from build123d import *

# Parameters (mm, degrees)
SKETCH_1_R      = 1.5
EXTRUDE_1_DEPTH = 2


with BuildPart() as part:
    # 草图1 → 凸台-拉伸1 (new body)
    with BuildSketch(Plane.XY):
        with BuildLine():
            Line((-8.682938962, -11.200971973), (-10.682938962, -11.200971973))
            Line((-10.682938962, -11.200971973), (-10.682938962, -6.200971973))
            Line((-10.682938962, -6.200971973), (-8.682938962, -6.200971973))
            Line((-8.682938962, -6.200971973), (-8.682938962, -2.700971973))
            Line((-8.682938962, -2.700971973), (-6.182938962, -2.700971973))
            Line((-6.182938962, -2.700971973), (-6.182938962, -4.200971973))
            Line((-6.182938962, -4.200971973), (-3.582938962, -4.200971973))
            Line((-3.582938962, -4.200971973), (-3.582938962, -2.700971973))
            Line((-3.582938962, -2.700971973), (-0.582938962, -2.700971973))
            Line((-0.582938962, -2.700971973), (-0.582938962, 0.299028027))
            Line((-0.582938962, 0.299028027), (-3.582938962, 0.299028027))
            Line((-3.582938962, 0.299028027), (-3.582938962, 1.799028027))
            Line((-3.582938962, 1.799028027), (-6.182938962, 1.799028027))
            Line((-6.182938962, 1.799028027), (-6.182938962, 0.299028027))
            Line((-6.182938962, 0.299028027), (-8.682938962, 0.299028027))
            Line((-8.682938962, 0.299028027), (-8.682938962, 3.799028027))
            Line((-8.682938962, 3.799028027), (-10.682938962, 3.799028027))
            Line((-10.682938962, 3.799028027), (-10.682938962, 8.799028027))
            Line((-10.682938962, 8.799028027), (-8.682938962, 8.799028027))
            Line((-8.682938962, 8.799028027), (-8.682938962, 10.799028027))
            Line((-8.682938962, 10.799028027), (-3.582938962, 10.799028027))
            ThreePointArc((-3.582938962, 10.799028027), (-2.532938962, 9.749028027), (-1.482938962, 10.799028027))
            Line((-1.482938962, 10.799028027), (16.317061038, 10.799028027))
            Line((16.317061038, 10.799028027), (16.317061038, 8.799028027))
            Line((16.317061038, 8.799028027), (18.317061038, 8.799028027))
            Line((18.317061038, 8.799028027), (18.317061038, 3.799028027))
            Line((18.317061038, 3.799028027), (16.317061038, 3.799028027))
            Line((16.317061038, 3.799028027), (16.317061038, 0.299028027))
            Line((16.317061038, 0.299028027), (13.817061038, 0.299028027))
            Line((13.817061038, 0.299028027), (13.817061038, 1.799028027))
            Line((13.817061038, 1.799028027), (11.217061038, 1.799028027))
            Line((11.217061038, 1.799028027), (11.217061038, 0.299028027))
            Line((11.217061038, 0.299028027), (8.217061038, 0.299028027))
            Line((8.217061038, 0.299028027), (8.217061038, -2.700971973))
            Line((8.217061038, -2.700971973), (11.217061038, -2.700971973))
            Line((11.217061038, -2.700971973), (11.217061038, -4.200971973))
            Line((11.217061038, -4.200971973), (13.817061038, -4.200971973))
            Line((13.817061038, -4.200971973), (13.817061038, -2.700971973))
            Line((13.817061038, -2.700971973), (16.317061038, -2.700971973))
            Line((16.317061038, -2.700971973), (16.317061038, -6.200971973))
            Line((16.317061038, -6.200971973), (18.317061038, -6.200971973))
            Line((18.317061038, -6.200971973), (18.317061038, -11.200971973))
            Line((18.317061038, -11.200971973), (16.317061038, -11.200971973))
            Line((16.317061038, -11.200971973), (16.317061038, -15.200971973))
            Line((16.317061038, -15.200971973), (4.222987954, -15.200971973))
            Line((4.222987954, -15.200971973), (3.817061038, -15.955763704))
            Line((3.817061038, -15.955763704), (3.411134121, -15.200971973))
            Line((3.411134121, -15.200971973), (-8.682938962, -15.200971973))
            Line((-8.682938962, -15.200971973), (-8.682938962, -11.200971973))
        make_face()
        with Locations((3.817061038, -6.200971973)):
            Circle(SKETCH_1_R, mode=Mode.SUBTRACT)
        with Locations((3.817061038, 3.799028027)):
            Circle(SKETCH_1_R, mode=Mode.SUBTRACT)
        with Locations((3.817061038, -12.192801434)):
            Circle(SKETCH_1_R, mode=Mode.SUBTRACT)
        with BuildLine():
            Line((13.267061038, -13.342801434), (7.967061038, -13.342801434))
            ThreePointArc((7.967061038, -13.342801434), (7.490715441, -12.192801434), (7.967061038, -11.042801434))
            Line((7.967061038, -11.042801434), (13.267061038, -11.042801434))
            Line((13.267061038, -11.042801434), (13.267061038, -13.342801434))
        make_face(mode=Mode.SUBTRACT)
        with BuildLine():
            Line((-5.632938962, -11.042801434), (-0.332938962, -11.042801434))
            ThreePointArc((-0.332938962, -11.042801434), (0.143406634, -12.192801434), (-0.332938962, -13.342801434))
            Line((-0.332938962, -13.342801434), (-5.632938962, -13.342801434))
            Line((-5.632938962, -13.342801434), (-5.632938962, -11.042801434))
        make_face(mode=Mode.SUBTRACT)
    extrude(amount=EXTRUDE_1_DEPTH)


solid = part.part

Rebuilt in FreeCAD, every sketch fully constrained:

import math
import FreeCAD as App
import Part
import Sketcher

doc = App.newDocument("Part")
body = doc.addObject("PartDesign::Body", "Body")

# Sketch on XY plane
sketch1 = body.newObject("Sketcher::SketchObject", "Sketch")
sketch1.AttachmentSupport = (doc.getObject("XY_Plane"), [""])
sketch1.MapMode = "FlatFace"
sketch1.addGeometry(Part.LineSegment(App.Vector(-10.7, -11.2, 0), App.Vector(-8.7, -11.2, 0)), False)
sketch1.addGeometry(Part.LineSegment(App.Vector(-8.7, -11.2, 0), App.Vector(-8.7, -15.2, 0)), False)
sketch1.addGeometry(Part.LineSegment(App.Vector(-8.7, -15.2, 0), App.Vector(3.4, -15.2, 0)), False)
sketch1.addGeometry(Part.LineSegment(App.Vector(3.4, -15.2, 0), App.Vector(3.8, -16, 0)), False)
sketch1.addGeometry(Part.LineSegment(App.Vector(3.8, -16, 0), App.Vector(4.2, -15.2, 0)), False)
sketch1.addGeometry(Part.LineSegment(App.Vector(4.2, -15.2, 0), App.Vector(16.3, -15.2, 0)), False)
sketch1.addGeometry(Part.LineSegment(App.Vector(16.3, -15.2, 0), App.Vector(16.3, -11.2, 0)), False)
sketch1.addGeometry(Part.LineSegment(App.Vector(16.3, -11.2, 0), App.Vector(18.3, -11.2, 0)), False)
sketch1.addGeometry(Part.LineSegment(App.Vector(18.3, -11.2, 0), App.Vector(18.3, -6.2, 0)), False)
sketch1.addGeometry(Part.LineSegment(App.Vector(18.3, -6.2, 0), App.Vector(16.3, -6.2, 0)), False)
sketch1.addGeometry(Part.LineSegment(App.Vector(16.3, -6.2, 0), App.Vector(16.3, -2.7, 0)), False)
sketch1.addGeometry(Part.LineSegment(App.Vector(16.3, -2.7, 0), App.Vector(13.8, -2.7, 0)), False)
sketch1.addGeometry(Part.LineSegment(App.Vector(13.8, -2.7, 0), App.Vector(13.8, -4.2, 0)), False)
sketch1.addGeometry(Part.LineSegment(App.Vector(13.8, -4.2, 0), App.Vector(11.2, -4.2, 0)), False)
sketch1.addGeometry(Part.LineSegment(App.Vector(11.2, -4.2, 0), App.Vector(11.2, -2.7, 0)), False)
sketch1.addGeometry(Part.LineSegment(App.Vector(11.2, -2.7, 0), App.Vector(8.2, -2.7, 0)), False)
sketch1.addGeometry(Part.LineSegment(App.Vector(8.2, -2.7, 0), App.Vector(8.2, 0.3, 0)), False)
sketch1.addGeometry(Part.LineSegment(App.Vector(8.2, 0.3, 0), App.Vector(11.2, 0.3, 0)), False)
sketch1.addGeometry(Part.LineSegment(App.Vector(11.2, 0.3, 0), App.Vector(11.2, 1.8, 0)), False)
sketch1.addGeometry(Part.LineSegment(App.Vector(11.2, 1.8, 0), App.Vector(13.8, 1.8, 0)), False)
sketch1.addGeometry(Part.LineSegment(App.Vector(13.8, 1.8, 0), App.Vector(13.8, 0.3, 0)), False)
sketch1.addGeometry(Part.LineSegment(App.Vector(13.8, 0.3, 0), App.Vector(16.3, 0.3, 0)), False)
sketch1.addGeometry(Part.LineSegment(App.Vector(16.3, 0.3, 0), App.Vector(16.3, 3.8, 0)), False)
sketch1.addGeometry(Part.LineSegment(App.Vector(16.3, 3.8, 0), App.Vector(18.3, 3.8, 0)), False)
sketch1.addGeometry(Part.LineSegment(App.Vector(18.3, 3.8, 0), App.Vector(18.3, 8.8, 0)), False)
sketch1.addGeometry(Part.LineSegment(App.Vector(18.3, 8.8, 0), App.Vector(16.3, 8.8, 0)), False)
sketch1.addGeometry(Part.LineSegment(App.Vector(16.3, 8.8, 0), App.Vector(16.3, 10.8, 0)), False)
sketch1.addGeometry(Part.LineSegment(App.Vector(16.3, 10.8, 0), App.Vector(-1.5, 10.8, 0)), False)
sketch1.addGeometry(Part.ArcOfCircle(Part.Circle(App.Vector(-2.5, 10.8, 0), App.Vector(0, 0, 1), 1.1), math.radians(180), math.radians(360)), False)
sketch1.addGeometry(Part.LineSegment(App.Vector(-3.6, 10.8, 0), App.Vector(-8.7, 10.8, 0)), False)
sketch1.addGeometry(Part.LineSegment(App.Vector(-8.7, 10.8, 0), App.Vector(-8.7, 8.8, 0)), False)
sketch1.addGeometry(Part.LineSegment(App.Vector(-8.7, 8.8, 0), App.Vector(-10.7, 8.8, 0)), False)
sketch1.addGeometry(Part.LineSegment(App.Vector(-10.7, 8.8, 0), App.Vector(-10.7, 3.8, 0)), False)
sketch1.addGeometry(Part.LineSegment(App.Vector(-10.7, 3.8, 0), App.Vector(-8.7, 3.8, 0)), False)
sketch1.addGeometry(Part.LineSegment(App.Vector(-8.7, 3.8, 0), App.Vector(-8.7, 0.3, 0)), False)
sketch1.addGeometry(Part.LineSegment(App.Vector(-8.7, 0.3, 0), App.Vector(-6.2, 0.3, 0)), False)
sketch1.addGeometry(Part.LineSegment(App.Vector(-6.2, 0.3, 0), App.Vector(-6.2, 1.8, 0)), False)
sketch1.addGeometry(Part.LineSegment(App.Vector(-6.2, 1.8, 0), App.Vector(-3.6, 1.8, 0)), False)
sketch1.addGeometry(Part.LineSegment(App.Vector(-3.6, 1.8, 0), App.Vector(-3.6, 0.3, 0)), False)
sketch1.addGeometry(Part.LineSegment(App.Vector(-3.6, 0.3, 0), App.Vector(-0.6, 0.3, 0)), False)
sketch1.addGeometry(Part.LineSegment(App.Vector(-0.6, 0.3, 0), App.Vector(-0.6, -2.7, 0)), False)
sketch1.addGeometry(Part.LineSegment(App.Vector(-0.6, -2.7, 0), App.Vector(-3.6, -2.7, 0)), False)
sketch1.addGeometry(Part.LineSegment(App.Vector(-3.6, -2.7, 0), App.Vector(-3.6, -4.2, 0)), False)
sketch1.addGeometry(Part.LineSegment(App.Vector(-3.6, -4.2, 0), App.Vector(-6.2, -4.2, 0)), False)
sketch1.addGeometry(Part.LineSegment(App.Vector(-6.2, -4.2, 0), App.Vector(-6.2, -2.7, 0)), False)
sketch1.addGeometry(Part.LineSegment(App.Vector(-6.2, -2.7, 0), App.Vector(-8.7, -2.7, 0)), False)
sketch1.addGeometry(Part.LineSegment(App.Vector(-8.7, -2.7, 0), App.Vector(-8.7, -6.2, 0)), False)
sketch1.addGeometry(Part.LineSegment(App.Vector(-8.7, -6.2, 0), App.Vector(-10.7, -6.2, 0)), False)
sketch1.addGeometry(Part.LineSegment(App.Vector(-10.7, -6.2, 0), App.Vector(-10.7, -11.2, 0)), False)
sketch1.addGeometry(Part.LineSegment(App.Vector(13.3, -13.3, 0), App.Vector(8, -13.3, 0)), False)
sketch1.addGeometry(Part.ArcOfCircle(Part.Circle(App.Vector(9.1, -12.2, 0), App.Vector(0, 0, 1), 1.6), math.radians(135), math.radians(225)), False)
sketch1.addGeometry(Part.LineSegment(App.Vector(8, -11, 0), App.Vector(13.3, -11, 0)), False)
sketch1.addGeometry(Part.LineSegment(App.Vector(13.3, -11, 0), App.Vector(13.3, -13.3, 0)), False)
sketch1.addGeometry(Part.Circle(App.Vector(3.8, -12.2, 0), App.Vector(0, 0, 1), 1.5), False)
sketch1.addGeometry(Part.LineSegment(App.Vector(-5.6, -11, 0), App.Vector(-0.3, -11, 0)), False)
sketch1.addGeometry(Part.ArcOfCircle(Part.Circle(App.Vector(-1.5, -12.2, 0), App.Vector(0, 0, 1), 1.6), math.radians(-45), math.radians(45)), False)
sketch1.addGeometry(Part.LineSegment(App.Vector(-0.3, -13.3, 0), App.Vector(-5.6, -13.3, 0)), False)
sketch1.addGeometry(Part.LineSegment(App.Vector(-5.6, -13.3, 0), App.Vector(-5.6, -11, 0)), False)
sketch1.addGeometry(Part.Circle(App.Vector(3.8, -6.2, 0), App.Vector(0, 0, 1), 1.5), False)
sketch1.addGeometry(Part.Circle(App.Vector(3.8, 3.8, 0), App.Vector(0, 0, 1), 1.5), False)
sketch1.addConstraint(Sketcher.Constraint("Coincident", 0, 2, 1, 1))
sketch1.addConstraint(Sketcher.Constraint("Coincident", 1, 2, 2, 1))
sketch1.addConstraint(Sketcher.Constraint("Coincident", 2, 2, 3, 1))
sketch1.addConstraint(Sketcher.Constraint("Coincident", 3, 2, 4, 1))
sketch1.addConstraint(Sketcher.Constraint("Coincident", 4, 2, 5, 1))
sketch1.addConstraint(Sketcher.Constraint("Coincident", 5, 2, 6, 1))
sketch1.addConstraint(Sketcher.Constraint("Coincident", 6, 2, 7, 1))
sketch1.addConstraint(Sketcher.Constraint("Coincident", 7, 2, 8, 1))
sketch1.addConstraint(Sketcher.Constraint("Coincident", 8, 2, 9, 1))
sketch1.addConstraint(Sketcher.Constraint("Coincident", 9, 2, 10, 1))
sketch1.addConstraint(Sketcher.Constraint("Coincident", 10, 2, 11, 1))
sketch1.addConstraint(Sketcher.Constraint("Coincident", 11, 2, 12, 1))
sketch1.addConstraint(Sketcher.Constraint("Coincident", 12, 2, 13, 1))
sketch1.addConstraint(Sketcher.Constraint("Coincident", 13, 2, 14, 1))
sketch1.addConstraint(Sketcher.Constraint("Coincident", 14, 2, 15, 1))
sketch1.addConstraint(Sketcher.Constraint("Coincident", 15, 2, 16, 1))
sketch1.addConstraint(Sketcher.Constraint("Coincident", 16, 2, 17, 1))
sketch1.addConstraint(Sketcher.Constraint("Coincident", 17, 2, 18, 1))
sketch1.addConstraint(Sketcher.Constraint("Coincident", 18, 2, 19, 1))
sketch1.addConstraint(Sketcher.Constraint("Coincident", 19, 2, 20, 1))
sketch1.addConstraint(Sketcher.Constraint("Coincident", 20, 2, 21, 1))
sketch1.addConstraint(Sketcher.Constraint("Coincident", 21, 2, 22, 1))
sketch1.addConstraint(Sketcher.Constraint("Coincident", 22, 2, 23, 1))
sketch1.addConstraint(Sketcher.Constraint("Coincident", 23, 2, 24, 1))
sketch1.addConstraint(Sketcher.Constraint("Coincident", 24, 2, 25, 1))
sketch1.addConstraint(Sketcher.Constraint("Coincident", 25, 2, 26, 1))
sketch1.addConstraint(Sketcher.Constraint("Coincident", 26, 2, 27, 1))
sketch1.addConstraint(Sketcher.Constraint("Coincident", 27, 2, 28, 2))
sketch1.addConstraint(Sketcher.Constraint("Coincident", 28, 1, 29, 1))
sketch1.addConstraint(Sketcher.Constraint("Coincident", 29, 2, 30, 1))
sketch1.addConstraint(Sketcher.Constraint("Coincident", 30, 2, 31, 1))
sketch1.addConstraint(Sketcher.Constraint("Coincident", 31, 2, 32, 1))
sketch1.addConstraint(Sketcher.Constraint("Coincident", 32, 2, 33, 1))
sketch1.addConstraint(Sketcher.Constraint("Coincident", 33, 2, 34, 1))
sketch1.addConstraint(Sketcher.Constraint("Coincident", 34, 2, 35, 1))
sketch1.addConstraint(Sketcher.Constraint("Coincident", 35, 2, 36, 1))
sketch1.addConstraint(Sketcher.Constraint("Coincident", 36, 2, 37, 1))
sketch1.addConstraint(Sketcher.Constraint("Coincident", 37, 2, 38, 1))
sketch1.addConstraint(Sketcher.Constraint("Coincident", 38, 2, 39, 1))
sketch1.addConstraint(Sketcher.Constraint("Coincident", 39, 2, 40, 1))
sketch1.addConstraint(Sketcher.Constraint("Coincident", 40, 2, 41, 1))
sketch1.addConstraint(Sketcher.Constraint("Coincident", 41, 2, 42, 1))
sketch1.addConstraint(Sketcher.Constraint("Coincident", 42, 2, 43, 1))
sketch1.addConstraint(Sketcher.Constraint("Coincident", 43, 2, 44, 1))
sketch1.addConstraint(Sketcher.Constraint("Coincident", 44, 2, 45, 1))
sketch1.addConstraint(Sketcher.Constraint("Coincident", 45, 2, 46, 1))
sketch1.addConstraint(Sketcher.Constraint("Coincident", 46, 2, 47, 1))
sketch1.addConstraint(Sketcher.Constraint("Coincident", 47, 2, 48, 1))
sketch1.addConstraint(Sketcher.Constraint("Coincident", 48, 2, 0, 1))
sketch1.addConstraint(Sketcher.Constraint("Coincident", 49, 2, 50, 2))
sketch1.addConstraint(Sketcher.Constraint("Coincident", 50, 1, 51, 1))
sketch1.addConstraint(Sketcher.Constraint("Coincident", 51, 2, 52, 1))
sketch1.addConstraint(Sketcher.Constraint("Coincident", 52, 2, 49, 1))
sketch1.addConstraint(Sketcher.Constraint("Coincident", 54, 2, 55, 2))
sketch1.addConstraint(Sketcher.Constraint("Coincident", 55, 1, 56, 1))
sketch1.addConstraint(Sketcher.Constraint("Coincident", 56, 2, 57, 1))
sketch1.addConstraint(Sketcher.Constraint("Coincident", 57, 2, 54, 1))
sketch1.addConstraint(Sketcher.Constraint("Horizontal", 0))
sketch1.addConstraint(Sketcher.Constraint("Vertical", 1))
sketch1.addConstraint(Sketcher.Constraint("Horizontal", 2))
sketch1.addConstraint(Sketcher.Constraint("Horizontal", 5))
sketch1.addConstraint(Sketcher.Constraint("Vertical", 6))
sketch1.addConstraint(Sketcher.Constraint("Horizontal", 7))
sketch1.addConstraint(Sketcher.Constraint("Vertical", 8))
sketch1.addConstraint(Sketcher.Constraint("Horizontal", 9))
sketch1.addConstraint(Sketcher.Constraint("Vertical", 10))
sketch1.addConstraint(Sketcher.Constraint("Horizontal", 11))
sketch1.addConstraint(Sketcher.Constraint("Vertical", 12))
sketch1.addConstraint(Sketcher.Constraint("Horizontal", 13))
sketch1.addConstraint(Sketcher.Constraint("Vertical", 14))
sketch1.addConstraint(Sketcher.Constraint("Horizontal", 15))
sketch1.addConstraint(Sketcher.Constraint("Vertical", 16))
sketch1.addConstraint(Sketcher.Constraint("Horizontal", 17))
sketch1.addConstraint(Sketcher.Constraint("Vertical", 18))
sketch1.addConstraint(Sketcher.Constraint("Horizontal", 19))
sketch1.addConstraint(Sketcher.Constraint("Vertical", 20))
sketch1.addConstraint(Sketcher.Constraint("Horizontal", 21))
sketch1.addConstraint(Sketcher.Constraint("Vertical", 22))
sketch1.addConstraint(Sketcher.Constraint("Horizontal", 23))
sketch1.addConstraint(Sketcher.Constraint("Vertical", 24))
sketch1.addConstraint(Sketcher.Constraint("Horizontal", 25))
sketch1.addConstraint(Sketcher.Constraint("Vertical", 26))
sketch1.addConstraint(Sketcher.Constraint("Horizontal", 27))
sketch1.addConstraint(Sketcher.Constraint("Horizontal", 29))
sketch1.addConstraint(Sketcher.Constraint("Vertical", 30))
sketch1.addConstraint(Sketcher.Constraint("Horizontal", 31))
sketch1.addConstraint(Sketcher.Constraint("Vertical", 32))
sketch1.addConstraint(Sketcher.Constraint("Horizontal", 33))
sketch1.addConstraint(Sketcher.Constraint("Vertical", 34))
sketch1.addConstraint(Sketcher.Constraint("Horizontal", 35))
sketch1.addConstraint(Sketcher.Constraint("Vertical", 36))
sketch1.addConstraint(Sketcher.Constraint("Horizontal", 37))
sketch1.addConstraint(Sketcher.Constraint("Vertical", 38))
sketch1.addConstraint(Sketcher.Constraint("Horizontal", 39))
sketch1.addConstraint(Sketcher.Constraint("Vertical", 40))
sketch1.addConstraint(Sketcher.Constraint("Horizontal", 41))
sketch1.addConstraint(Sketcher.Constraint("Vertical", 42))
sketch1.addConstraint(Sketcher.Constraint("Horizontal", 43))
sketch1.addConstraint(Sketcher.Constraint("Vertical", 44))
sketch1.addConstraint(Sketcher.Constraint("Horizontal", 45))
sketch1.addConstraint(Sketcher.Constraint("Vertical", 46))
sketch1.addConstraint(Sketcher.Constraint("Horizontal", 47))
sketch1.addConstraint(Sketcher.Constraint("Vertical", 48))
sketch1.addConstraint(Sketcher.Constraint("Horizontal", 49))
sketch1.addConstraint(Sketcher.Constraint("Horizontal", 51))
sketch1.addConstraint(Sketcher.Constraint("Vertical", 52))
sketch1.addConstraint(Sketcher.Constraint("Horizontal", 54))
sketch1.addConstraint(Sketcher.Constraint("Horizontal", 56))
sketch1.addConstraint(Sketcher.Constraint("Vertical", 57))
sketch1.addConstraint(Sketcher.Constraint("Equal", 50, 55))
sketch1.addConstraint(Sketcher.Constraint("Equal", 53, 58))
sketch1.addConstraint(Sketcher.Constraint("Equal", 58, 59))
sketch1.addConstraint(Sketcher.Constraint("Horizontal", 50, 3, 53, 3))
sketch1.addConstraint(Sketcher.Constraint("Horizontal", 53, 3, 55, 3))
sketch1.addConstraint(Sketcher.Constraint("Horizontal", 2, 2, 4, 2))
sketch1.addConstraint(Sketcher.Constraint("Horizontal", 0, 2, 6, 2))
sketch1.addConstraint(Sketcher.Constraint("Horizontal", 58, 3, 8, 2))
sketch1.addConstraint(Sketcher.Constraint("Horizontal", 11, 2, 14, 2))
sketch1.addConstraint(Sketcher.Constraint("Horizontal", 17, 2, 20, 2))
sketch1.addConstraint(Sketcher.Constraint("Horizontal", 59, 3, 22, 2))
sketch1.addConstraint(Sketcher.Constraint("Horizontal", 28, 3, 26, 2))
sketch1.addConstraint(Sketcher.Constraint("Horizontal", 27, 2, 28, 1))
sketch1.addConstraint(Sketcher.Constraint("Horizontal", 25, 2, 30, 2))
sketch1.addConstraint(Sketcher.Constraint("Horizontal", 23, 2, 32, 2))
sketch1.addConstraint(Sketcher.Constraint("Horizontal", 21, 2, 34, 2))
sketch1.addConstraint(Sketcher.Constraint("Horizontal", 19, 2, 36, 2))
sketch1.addConstraint(Sketcher.Constraint("Horizontal", 35, 2, 38, 2))
sketch1.addConstraint(Sketcher.Constraint("Horizontal", 15, 2, 40, 2))
sketch1.addConstraint(Sketcher.Constraint("Horizontal", 13, 2, 42, 2))
sketch1.addConstraint(Sketcher.Constraint("Horizontal", 41, 2, 44, 2))
sketch1.addConstraint(Sketcher.Constraint("Horizontal", 9, 2, 46, 2))
sketch1.addConstraint(Sketcher.Constraint("Horizontal", 51, 2, 54, 2))
sketch1.addConstraint(Sketcher.Constraint("Horizontal", 52, 2, 55, 1))
sketch1.addConstraint(Sketcher.Constraint("Vertical", 53, 3, 58, 3))
sketch1.addConstraint(Sketcher.Constraint("Vertical", 58, 3, 59, 3))
sketch1.addConstraint(Sketcher.Constraint("Vertical", 59, 3, 3, 2))
sketch1.addConstraint(Sketcher.Constraint("Vertical", 6, 2, 9, 2))
sketch1.addConstraint(Sketcher.Constraint("Vertical", 14, 2, 17, 2))
sketch1.addConstraint(Sketcher.Constraint("Vertical", 12, 2, 19, 2))
sketch1.addConstraint(Sketcher.Constraint("Vertical", 10, 2, 21, 2))
sketch1.addConstraint(Sketcher.Constraint("Vertical", 8, 2, 23, 2))
sketch1.addConstraint(Sketcher.Constraint("Vertical", 22, 2, 25, 2))
sketch1.addConstraint(Sketcher.Constraint("Vertical", 55, 3, 27, 2))
sketch1.addConstraint(Sketcher.Constraint("Vertical", 1, 2, 29, 2))
sketch1.addConstraint(Sketcher.Constraint("Vertical", 30, 2, 33, 2))
sketch1.addConstraint(Sketcher.Constraint("Vertical", 28, 1, 37, 2))
sketch1.addConstraint(Sketcher.Constraint("Vertical", 38, 2, 41, 2))
sketch1.addConstraint(Sketcher.Constraint("Vertical", 36, 2, 43, 2))
sketch1.addConstraint(Sketcher.Constraint("Vertical", 34, 2, 45, 2))
sketch1.addConstraint(Sketcher.Constraint("Vertical", 32, 2, 47, 2))
sketch1.addConstraint(Sketcher.Constraint("Vertical", 49, 2, 50, 1))
sketch1.addConstraint(Sketcher.Constraint("Equal", 2, 5))
sketch1.addConstraint(Sketcher.Constraint("Equal", 0, 7))
sketch1.addConstraint(Sketcher.Constraint("Equal", 21, 35))
sketch1.addConstraint(Sketcher.Constraint("Equal", 19, 37))
sketch1.addConstraint(Sketcher.Constraint("Equal", 17, 39))
sketch1.addConstraint(Sketcher.Constraint("Equal", 51, 54))
sketch1.addConstraint(Sketcher.Constraint("Equal", 41, 16))
sketch1.addConstraint(Sketcher.Constraint("Equal", 14, 18))
sketch1.addConstraint(Sketcher.Constraint("Equal", 10, 22))
sketch1.addConstraint(Sketcher.Constraint("Equal", 8, 24))
sketch1.addConstraint(Sketcher.Constraint("Equal", 47, 26))
sketch1.addConstraint(Sketcher.Constraint("Equal", 3, 4))
sketch1.addConstraint(Sketcher.Constraint("Diameter", 53, 3.0))
sketch1.addConstraint(Sketcher.Constraint("DistanceX", 0, 1, 0, 2, 2.0))
sketch1.addConstraint(Sketcher.Constraint("DistanceX", 15, 2, 15, 1, 3.0))
sketch1.addConstraint(Sketcher.Constraint("DistanceY", 1, 2, 1, 1, 4.0))
sketch1.addConstraint(Sketcher.Constraint("DistanceY", 8, 1, 8, 2, 5.0))
sketch1.addConstraint(Sketcher.Constraint("Radius", 28, 1.05))
sketch1.addConstraint(Sketcher.Constraint("DistanceX", 11, 2, 11, 1, 2.5))
sketch1.addConstraint(Sketcher.Constraint("DistanceX", 13, 2, 13, 1, 2.6))
sketch1.addConstraint(Sketcher.Constraint("DistanceX", 27, 2, 27, 1, 17.8))
sketch1.addConstraint(Sketcher.Constraint("DistanceX", 49, 2, 49, 1, 5.3))
sketch1.addConstraint(Sketcher.Constraint("DistanceY", 10, 1, 10, 2, 3.5))
sketch1.addConstraint(Sketcher.Constraint("DistanceY", 12, 2, 12, 1, 1.5))
sketch1.addConstraint(Sketcher.Constraint("DistanceY", 52, 2, 52, 1, 2.3))
sketch1.addConstraint(Sketcher.Constraint("Radius", 50, 1.626346))
sketch1.addConstraint(Sketcher.Constraint("DistanceY", 50, 3, -1, 1, 12.192801))
sketch1.addConstraint(Sketcher.Constraint("DistanceX", 2, 1, 2, 2, 12.094073))
sketch1.addConstraint(Sketcher.Constraint("DistanceX", 28, 3, -1, 1, 2.532939))
sketch1.addConstraint(Sketcher.Constraint("DistanceY", -1, 1, 28, 3, 10.799028))
sketch1.addConstraint(Sketcher.Constraint("DistanceX", -1, 1, 50, 3, 9.117061))
sketch1.addConstraint(Sketcher.Constraint("Distance", 3, 0.857022))
pad1 = body.newObject("PartDesign::Pad", "Pad")
pad1.Profile = sketch1
pad1.Length = 2

doc.recompute()
